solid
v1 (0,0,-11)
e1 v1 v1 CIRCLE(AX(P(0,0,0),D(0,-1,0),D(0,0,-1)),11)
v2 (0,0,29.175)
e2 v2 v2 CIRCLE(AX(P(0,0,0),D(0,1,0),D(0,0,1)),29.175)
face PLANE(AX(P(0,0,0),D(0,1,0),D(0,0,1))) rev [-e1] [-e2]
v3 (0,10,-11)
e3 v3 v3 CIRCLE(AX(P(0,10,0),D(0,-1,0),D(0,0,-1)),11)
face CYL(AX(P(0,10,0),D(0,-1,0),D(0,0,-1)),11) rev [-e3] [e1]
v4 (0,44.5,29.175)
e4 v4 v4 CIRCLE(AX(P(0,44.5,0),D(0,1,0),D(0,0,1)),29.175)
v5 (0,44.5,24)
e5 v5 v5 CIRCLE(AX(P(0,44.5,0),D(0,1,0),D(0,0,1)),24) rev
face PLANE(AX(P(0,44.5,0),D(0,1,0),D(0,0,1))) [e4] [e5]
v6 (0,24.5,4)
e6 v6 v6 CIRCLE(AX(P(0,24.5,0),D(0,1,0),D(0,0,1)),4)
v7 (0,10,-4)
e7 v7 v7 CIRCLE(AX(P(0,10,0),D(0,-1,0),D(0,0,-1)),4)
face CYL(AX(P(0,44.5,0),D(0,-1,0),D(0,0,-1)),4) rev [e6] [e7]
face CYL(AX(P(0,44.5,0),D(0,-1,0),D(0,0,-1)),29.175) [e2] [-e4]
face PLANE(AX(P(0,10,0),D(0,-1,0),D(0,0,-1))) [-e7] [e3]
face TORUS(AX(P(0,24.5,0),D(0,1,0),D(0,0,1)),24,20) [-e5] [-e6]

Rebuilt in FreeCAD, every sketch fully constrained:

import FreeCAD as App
import Part
import Sketcher

V = App.Vector
Q = App.Units.Quantity


def edges_at(feature, points):
    """Names of the edges that pass closest to the given points."""
    edges = feature.Shape.Edges
    near = lambda p: min(range(len(edges)), key=lambda i: edges[i].distToShape(Part.Vertex(*p))[0])
    return sorted({f"Edge{near(p) + 1}" for p in points})

doc = App.newDocument("Part")
params = doc.addObject("Spreadsheet::Sheet", "Params")
for row, (alias, value) in enumerate([
    ("sketch1_diameter", "8 mm"),
    ("sketch1_diameter2", "58.35 mm"),
    ("pad1_length", "44.5 mm"),
    ("fillet_radius", "20 mm"),
    ("sketch2_diameter", "22 mm"),
    ("pocket1_length", "10 mm"),
], start=1):
    params.set(f"A{row}", alias)
    params.set(f"B{row}", "=" + value)
    params.setAlias(f"B{row}", alias)

body = doc.addObject("PartDesign::Body", "Body")

# Sketch on XZ plane
sketch1 = body.newObject("Sketcher::SketchObject", "Sketch")
sketch1.AttachmentSupport = (doc.getObject("XZ_Plane"), [""])
sketch1.MapMode = "FlatFace"
sketch1.addGeometry([
    Part.Circle(V(0, 0, 0), V(0, 0, 1), 29.175),
    Part.Circle(V(0, 0, 0), V(0, 0, 1), 4),
], False)
sketch1.addConstraint([
    Sketcher.Constraint("Coincident", 0, 3, -1, 1),
    Sketcher.Constraint("Coincident", 1, 3, -1, 1),
    Sketcher.Constraint("Diameter", 1, Q("8 mm")),
    Sketcher.Constraint("Diameter", 0, Q("58.35 mm")),
])
sketch1.setExpression("Constraints[2]", "Params.sketch1_diameter")
sketch1.setExpression("Constraints[3]", "Params.sketch1_diameter2")
pad1 = body.newObject("PartDesign::Pad", "Pad")
pad1.Profile = sketch1
pad1.setExpression("Length", "Params.pad1_length")
pad1.Reversed = True
doc.recompute()

fillet = body.newObject("PartDesign::Fillet", "Fillet")
fillet.Base = (pad1, edges_at(pad1, [(0, 44.5, -4)]))
fillet.setExpression("Radius", "Params.fillet_radius")

# Sketch on XZ plane
sketch2 = body.newObject("Sketcher::SketchObject", "Sketch001")
sketch2.AttachmentSupport = (doc.getObject("XZ_Plane"), [""])
sketch2.MapMode = "FlatFace"
sketch2.addGeometry(Part.Circle(V(0, 0, 0), V(0, 0, 1), 11), False)
sketch2.addConstraint([
    Sketcher.Constraint("Coincident", 0, 3, -1, 1),
    Sketcher.Constraint("Diameter", 0, Q("22 mm")),
])
sketch2.setExpression("Constraints[1]", "Params.sketch2_diameter")
pocket1 = body.newObject("PartDesign::Pocket", "Pocket")
pocket1.Profile = sketch2
pocket1.setExpression("Length", "Params.pocket1_length")

doc.recompute()
